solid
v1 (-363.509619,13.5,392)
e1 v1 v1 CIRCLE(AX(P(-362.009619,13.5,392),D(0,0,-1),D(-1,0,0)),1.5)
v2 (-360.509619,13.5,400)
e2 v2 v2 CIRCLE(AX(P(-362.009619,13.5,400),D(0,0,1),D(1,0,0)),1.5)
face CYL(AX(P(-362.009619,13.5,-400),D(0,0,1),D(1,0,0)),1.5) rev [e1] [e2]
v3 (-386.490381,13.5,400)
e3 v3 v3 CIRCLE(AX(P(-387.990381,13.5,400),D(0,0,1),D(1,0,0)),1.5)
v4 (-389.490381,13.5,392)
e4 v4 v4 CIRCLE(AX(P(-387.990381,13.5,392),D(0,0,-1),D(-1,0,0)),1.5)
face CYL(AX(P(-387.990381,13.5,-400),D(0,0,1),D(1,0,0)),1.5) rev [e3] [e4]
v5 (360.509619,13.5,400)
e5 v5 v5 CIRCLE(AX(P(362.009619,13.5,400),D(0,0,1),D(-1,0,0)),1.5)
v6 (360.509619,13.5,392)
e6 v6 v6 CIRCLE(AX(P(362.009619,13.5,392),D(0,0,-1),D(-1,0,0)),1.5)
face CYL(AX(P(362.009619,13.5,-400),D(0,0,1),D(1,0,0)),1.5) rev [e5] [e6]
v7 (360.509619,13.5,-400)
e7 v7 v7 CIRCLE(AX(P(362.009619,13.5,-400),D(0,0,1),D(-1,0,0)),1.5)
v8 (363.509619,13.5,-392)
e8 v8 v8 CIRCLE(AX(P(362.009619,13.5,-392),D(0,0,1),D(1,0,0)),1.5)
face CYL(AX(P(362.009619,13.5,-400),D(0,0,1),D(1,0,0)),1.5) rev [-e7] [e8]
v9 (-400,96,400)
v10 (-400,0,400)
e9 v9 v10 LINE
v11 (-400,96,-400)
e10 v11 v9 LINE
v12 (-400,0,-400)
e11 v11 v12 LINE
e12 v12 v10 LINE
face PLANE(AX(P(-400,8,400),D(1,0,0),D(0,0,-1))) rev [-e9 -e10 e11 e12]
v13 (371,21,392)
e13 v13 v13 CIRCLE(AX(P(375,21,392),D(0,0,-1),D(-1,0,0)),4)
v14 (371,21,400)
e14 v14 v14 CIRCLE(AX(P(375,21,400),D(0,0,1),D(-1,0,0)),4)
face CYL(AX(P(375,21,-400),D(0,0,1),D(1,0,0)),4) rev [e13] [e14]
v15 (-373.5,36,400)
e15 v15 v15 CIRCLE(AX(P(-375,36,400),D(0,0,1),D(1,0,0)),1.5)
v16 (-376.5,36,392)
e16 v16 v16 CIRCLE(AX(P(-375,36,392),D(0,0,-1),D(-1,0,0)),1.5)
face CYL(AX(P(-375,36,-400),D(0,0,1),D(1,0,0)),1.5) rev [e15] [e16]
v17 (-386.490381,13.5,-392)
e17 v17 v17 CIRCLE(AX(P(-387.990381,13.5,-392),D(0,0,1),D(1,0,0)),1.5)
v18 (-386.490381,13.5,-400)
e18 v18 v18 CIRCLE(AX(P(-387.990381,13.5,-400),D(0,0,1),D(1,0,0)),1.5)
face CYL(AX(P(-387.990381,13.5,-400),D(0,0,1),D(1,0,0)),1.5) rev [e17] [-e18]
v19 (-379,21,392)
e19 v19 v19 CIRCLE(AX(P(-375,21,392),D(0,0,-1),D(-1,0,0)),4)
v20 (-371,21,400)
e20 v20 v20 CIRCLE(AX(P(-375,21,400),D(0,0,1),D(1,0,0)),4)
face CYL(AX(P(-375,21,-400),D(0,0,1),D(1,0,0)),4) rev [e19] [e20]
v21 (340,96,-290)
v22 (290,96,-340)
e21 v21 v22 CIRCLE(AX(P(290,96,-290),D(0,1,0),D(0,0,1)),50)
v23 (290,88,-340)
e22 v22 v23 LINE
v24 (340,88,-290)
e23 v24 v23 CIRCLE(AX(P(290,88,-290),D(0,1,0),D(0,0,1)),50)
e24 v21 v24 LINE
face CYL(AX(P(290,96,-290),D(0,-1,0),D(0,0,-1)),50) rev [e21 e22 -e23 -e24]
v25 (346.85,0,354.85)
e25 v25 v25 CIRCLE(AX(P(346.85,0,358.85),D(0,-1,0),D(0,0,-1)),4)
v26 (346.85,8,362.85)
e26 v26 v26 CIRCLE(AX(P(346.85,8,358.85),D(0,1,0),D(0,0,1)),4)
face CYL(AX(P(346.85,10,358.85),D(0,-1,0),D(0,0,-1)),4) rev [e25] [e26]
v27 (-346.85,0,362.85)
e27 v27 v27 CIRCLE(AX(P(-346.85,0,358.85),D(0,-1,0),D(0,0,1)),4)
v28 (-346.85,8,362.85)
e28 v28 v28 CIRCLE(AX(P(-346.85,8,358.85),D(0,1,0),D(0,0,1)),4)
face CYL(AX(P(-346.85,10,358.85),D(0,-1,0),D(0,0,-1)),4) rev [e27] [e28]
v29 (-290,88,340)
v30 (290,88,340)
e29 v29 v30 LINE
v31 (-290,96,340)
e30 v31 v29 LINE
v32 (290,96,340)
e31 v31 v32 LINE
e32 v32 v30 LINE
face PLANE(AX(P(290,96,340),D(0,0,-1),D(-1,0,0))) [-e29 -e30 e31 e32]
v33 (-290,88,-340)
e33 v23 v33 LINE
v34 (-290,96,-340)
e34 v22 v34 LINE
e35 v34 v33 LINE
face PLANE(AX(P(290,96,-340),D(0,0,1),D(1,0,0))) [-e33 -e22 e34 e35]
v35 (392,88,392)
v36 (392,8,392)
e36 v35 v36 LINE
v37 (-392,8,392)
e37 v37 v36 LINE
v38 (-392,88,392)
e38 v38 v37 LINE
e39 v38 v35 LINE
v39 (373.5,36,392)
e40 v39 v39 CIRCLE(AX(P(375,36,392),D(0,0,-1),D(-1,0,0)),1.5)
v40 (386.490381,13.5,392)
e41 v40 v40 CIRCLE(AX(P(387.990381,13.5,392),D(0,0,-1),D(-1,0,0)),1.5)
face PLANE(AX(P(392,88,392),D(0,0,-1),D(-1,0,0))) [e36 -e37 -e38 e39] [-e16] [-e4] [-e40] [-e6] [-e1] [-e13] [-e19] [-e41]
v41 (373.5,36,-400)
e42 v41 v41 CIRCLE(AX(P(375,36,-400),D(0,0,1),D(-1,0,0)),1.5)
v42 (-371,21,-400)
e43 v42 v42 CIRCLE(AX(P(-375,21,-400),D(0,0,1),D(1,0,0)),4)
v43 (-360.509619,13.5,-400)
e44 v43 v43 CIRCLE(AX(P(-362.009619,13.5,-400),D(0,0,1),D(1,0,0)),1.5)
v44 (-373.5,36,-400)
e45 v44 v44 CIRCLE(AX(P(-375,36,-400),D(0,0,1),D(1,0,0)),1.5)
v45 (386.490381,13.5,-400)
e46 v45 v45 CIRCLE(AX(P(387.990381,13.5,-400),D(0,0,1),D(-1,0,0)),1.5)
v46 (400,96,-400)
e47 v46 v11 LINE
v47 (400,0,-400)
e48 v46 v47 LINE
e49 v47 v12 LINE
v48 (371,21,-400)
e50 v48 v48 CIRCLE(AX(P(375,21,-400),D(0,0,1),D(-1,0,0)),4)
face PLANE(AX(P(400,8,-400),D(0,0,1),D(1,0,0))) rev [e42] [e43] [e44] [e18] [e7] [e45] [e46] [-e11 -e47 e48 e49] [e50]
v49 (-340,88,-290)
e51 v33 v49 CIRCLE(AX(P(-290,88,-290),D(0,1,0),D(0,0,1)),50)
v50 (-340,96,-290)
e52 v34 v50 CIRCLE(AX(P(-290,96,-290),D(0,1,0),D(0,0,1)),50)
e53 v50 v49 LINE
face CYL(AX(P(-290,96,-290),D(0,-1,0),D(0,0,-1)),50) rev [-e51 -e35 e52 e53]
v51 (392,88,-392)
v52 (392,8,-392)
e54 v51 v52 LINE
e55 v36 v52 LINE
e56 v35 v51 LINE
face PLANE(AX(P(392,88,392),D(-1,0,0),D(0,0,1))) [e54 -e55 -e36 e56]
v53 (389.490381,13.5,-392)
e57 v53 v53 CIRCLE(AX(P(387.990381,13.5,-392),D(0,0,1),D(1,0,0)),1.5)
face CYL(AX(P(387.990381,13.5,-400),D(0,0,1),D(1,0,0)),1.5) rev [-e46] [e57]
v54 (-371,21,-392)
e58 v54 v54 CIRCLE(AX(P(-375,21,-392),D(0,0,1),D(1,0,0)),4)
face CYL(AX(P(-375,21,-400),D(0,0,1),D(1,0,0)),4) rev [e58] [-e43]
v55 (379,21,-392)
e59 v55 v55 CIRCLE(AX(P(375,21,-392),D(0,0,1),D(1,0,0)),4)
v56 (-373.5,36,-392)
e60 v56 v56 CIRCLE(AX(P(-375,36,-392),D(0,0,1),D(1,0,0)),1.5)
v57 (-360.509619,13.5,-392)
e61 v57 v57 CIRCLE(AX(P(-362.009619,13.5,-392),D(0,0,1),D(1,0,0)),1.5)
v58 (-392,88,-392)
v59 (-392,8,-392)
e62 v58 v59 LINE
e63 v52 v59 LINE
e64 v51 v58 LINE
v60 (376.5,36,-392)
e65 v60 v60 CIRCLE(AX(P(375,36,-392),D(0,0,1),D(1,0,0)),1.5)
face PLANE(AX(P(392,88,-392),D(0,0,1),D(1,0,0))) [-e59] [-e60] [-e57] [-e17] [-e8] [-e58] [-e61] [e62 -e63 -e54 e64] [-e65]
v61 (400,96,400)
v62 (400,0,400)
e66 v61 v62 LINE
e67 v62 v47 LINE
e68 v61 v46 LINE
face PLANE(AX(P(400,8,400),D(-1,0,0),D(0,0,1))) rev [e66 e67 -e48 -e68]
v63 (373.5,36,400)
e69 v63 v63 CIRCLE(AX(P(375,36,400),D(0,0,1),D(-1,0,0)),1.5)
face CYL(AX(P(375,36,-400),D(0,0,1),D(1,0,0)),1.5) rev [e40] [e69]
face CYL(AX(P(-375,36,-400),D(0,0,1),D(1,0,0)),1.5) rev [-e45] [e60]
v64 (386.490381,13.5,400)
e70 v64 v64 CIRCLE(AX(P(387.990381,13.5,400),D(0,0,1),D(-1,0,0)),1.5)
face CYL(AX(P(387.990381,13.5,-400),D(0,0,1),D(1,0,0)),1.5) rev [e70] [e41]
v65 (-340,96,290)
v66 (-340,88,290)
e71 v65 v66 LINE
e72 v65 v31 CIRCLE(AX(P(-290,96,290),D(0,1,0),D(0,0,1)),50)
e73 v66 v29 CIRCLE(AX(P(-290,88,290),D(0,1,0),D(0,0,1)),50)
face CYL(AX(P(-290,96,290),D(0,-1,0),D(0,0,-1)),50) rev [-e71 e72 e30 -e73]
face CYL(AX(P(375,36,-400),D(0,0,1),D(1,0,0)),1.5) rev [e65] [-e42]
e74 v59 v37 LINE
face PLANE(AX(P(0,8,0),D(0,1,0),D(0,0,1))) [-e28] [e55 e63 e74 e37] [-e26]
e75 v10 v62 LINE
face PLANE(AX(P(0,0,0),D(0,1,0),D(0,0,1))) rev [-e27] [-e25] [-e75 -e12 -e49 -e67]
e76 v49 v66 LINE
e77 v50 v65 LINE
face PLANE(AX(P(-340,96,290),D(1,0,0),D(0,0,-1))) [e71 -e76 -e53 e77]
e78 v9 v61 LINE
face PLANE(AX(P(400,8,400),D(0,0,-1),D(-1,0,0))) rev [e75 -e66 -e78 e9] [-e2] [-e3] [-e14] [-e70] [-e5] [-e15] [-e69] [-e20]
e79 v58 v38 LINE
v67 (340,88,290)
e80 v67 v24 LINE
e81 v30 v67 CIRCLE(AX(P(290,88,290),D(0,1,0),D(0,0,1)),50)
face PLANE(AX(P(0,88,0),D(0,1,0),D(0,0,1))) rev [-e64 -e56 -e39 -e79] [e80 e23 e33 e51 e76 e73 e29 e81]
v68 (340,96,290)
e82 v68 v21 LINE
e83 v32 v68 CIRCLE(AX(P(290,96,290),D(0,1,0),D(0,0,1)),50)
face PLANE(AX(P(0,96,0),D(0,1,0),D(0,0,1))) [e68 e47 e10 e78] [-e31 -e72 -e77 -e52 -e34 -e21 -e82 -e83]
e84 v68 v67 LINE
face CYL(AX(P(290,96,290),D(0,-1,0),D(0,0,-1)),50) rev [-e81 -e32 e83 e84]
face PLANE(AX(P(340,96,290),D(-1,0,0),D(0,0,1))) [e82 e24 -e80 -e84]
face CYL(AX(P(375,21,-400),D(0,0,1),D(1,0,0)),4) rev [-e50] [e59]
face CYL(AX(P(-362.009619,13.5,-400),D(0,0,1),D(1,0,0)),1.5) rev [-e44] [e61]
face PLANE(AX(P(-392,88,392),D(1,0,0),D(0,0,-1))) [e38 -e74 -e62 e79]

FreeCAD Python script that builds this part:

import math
import FreeCAD as App
import Part
import Sketcher
from FreeCAD import Vector

doc = App.newDocument("Part")
body = doc.addObject("PartDesign::Body", "Body")

# Sketch on XZ plane
sketch1 = body.newObject("Sketcher::SketchObject", "Sketch")
sketch1.AttachmentSupport = (doc.getObject("XZ_Plane"), [""])
sketch1.MapMode = "FlatFace"
sketch1.addGeometry(Part.LineSegment(Vector(-400, -400, 0), Vector(-400, 400, 0)), False)
sketch1.addGeometry(Part.LineSegment(Vector(-400, 400, 0), Vector(400, 400, 0)), False)
sketch1.addGeometry(Part.LineSegment(Vector(400, 400, 0), Vector(400, -400, 0)), False)
sketch1.addGeometry(Part.LineSegment(Vector(400, -400, 0), Vector(-400, -400, 0)), False)
sketch1.addConstraint(Sketcher.Constraint("Coincident", 0, 2, 1, 1))
sketch1.addConstraint(Sketcher.Constraint("Coincident", 1, 2, 2, 1))
sketch1.addConstraint(Sketcher.Constraint("Coincident", 2, 2, 3, 1))
sketch1.addConstraint(Sketcher.Constraint("Coincident", 3, 2, 0, 1))
sketch1.addConstraint(Sketcher.Constraint("Vertical", 0))
sketch1.addConstraint(Sketcher.Constraint("Horizontal", 1))
sketch1.addConstraint(Sketcher.Constraint("Vertical", 2))
sketch1.addConstraint(Sketcher.Constraint("Horizontal", 3))
sketch1.addConstraint(Sketcher.Constraint("Symmetric", 0, 2, 2, 2, -1, 1))
sketch1.addConstraint(Sketcher.Constraint("Equal", 3, 0))
sketch1.addConstraint(Sketcher.Constraint("DistanceX", 1, 1, 1, 2, 800.0))
pad1 = body.newObject("PartDesign::Pad", "Pad")
pad1.Profile = sketch1
pad1.Length = 8
pad1.Reversed = True

# Sketch on XZ plane
sketch2 = body.newObject("Sketcher::SketchObject", "Sketch001")
sketch2.AttachmentSupport = (doc.getObject("XZ_Plane"), [""])
sketch2.MapMode = "FlatFace"
sketch2.AttachmentOffset = App.Placement(Vector(0, 0, -8), App.Rotation())
sketch2.addGeometry(Part.LineSegment(Vector(-400, -400, 0), Vector(-400, 400, 0)), False)
sketch2.addGeometry(Part.LineSegment(Vector(-400, 400, 0), Vector(400, 400, 0)), False)
sketch2.addGeometry(Part.LineSegment(Vector(400, 400, 0), Vector(400, -400, 0)), False)
sketch2.addGeometry(Part.LineSegment(Vector(400, -400, 0), Vector(-400, -400, 0)), False)
sketch2.addGeometry(Part.LineSegment(Vector(392, 392, 0), Vector(-392, 392, 0)), False)
sketch2.addGeometry(Part.LineSegment(Vector(-392, 392, 0), Vector(-392, -392, 0)), False)
sketch2.addGeometry(Part.LineSegment(Vector(-392, -392, 0), Vector(392, -392, 0)), False)
sketch2.addGeometry(Part.LineSegment(Vector(392, -392, 0), Vector(392, 392, 0)), False)
sketch2.addConstraint(Sketcher.Constraint("Coincident", 0, 2, 1, 1))
sketch2.addConstraint(Sketcher.Constraint("Coincident", 1, 2, 2, 1))
sketch2.addConstraint(Sketcher.Constraint("Coincident", 2, 2, 3, 1))
sketch2.addConstraint(Sketcher.Constraint("Coincident", 3, 2, 0, 1))
sketch2.addConstraint(Sketcher.Constraint("Coincident", 4, 2, 5, 1))
sketch2.addConstraint(Sketcher.Constraint("Coincident", 5, 2, 6, 1))
sketch2.addConstraint(Sketcher.Constraint("Coincident", 6, 2, 7, 1))
sketch2.addConstraint(Sketcher.Constraint("Coincident", 7, 2, 4, 1))
sketch2.addConstraint(Sketcher.Constraint("Vertical", 0))
sketch2.addConstraint(Sketcher.Constraint("Horizontal", 1))
sketch2.addConstraint(Sketcher.Constraint("Vertical", 2))
sketch2.addConstraint(Sketcher.Constraint("Horizontal", 3))
sketch2.addConstraint(Sketcher.Constraint("Horizontal", 4))
sketch2.addConstraint(Sketcher.Constraint("Vertical", 5))
sketch2.addConstraint(Sketcher.Constraint("Horizontal", 6))
sketch2.addConstraint(Sketcher.Constraint("Vertical", 7))
sketch2.addConstraint(Sketcher.Constraint("Symmetric", 0, 2, 2, 2, -1, 1))
sketch2.addConstraint(Sketcher.Constraint("Symmetric", 4, 2, 6, 2, -1, 1))
sketch2.addConstraint(Sketcher.Constraint("Equal", 3, 0))
sketch2.addConstraint(Sketcher.Constraint("Equal", 6, 5))
sketch2.addConstraint(Sketcher.Constraint("DistanceX", 1, 1, 1, 2, 800.0))
sketch2.addConstraint(Sketcher.Constraint("DistanceX", 4, 2, 4, 1, 784.0))
pad2 = body.newObject("PartDesign::Pad", "Pad001")
pad2.Profile = sketch2
pad2.Length = 80
pad2.Reversed = True

# Sketch on XZ plane
sketch3 = body.newObject("Sketcher::SketchObject", "Sketch002")
sketch3.AttachmentSupport = (doc.getObject("XZ_Plane"), [""])
sketch3.MapMode = "FlatFace"
sketch3.AttachmentOffset = App.Placement(Vector(0, 0, -88), App.Rotation())
sketch3.addGeometry(Part.LineSegment(Vector(-400, -400, 0), Vector(-400, 400, 0)), False)
sketch3.addGeometry(Part.LineSegment(Vector(-400, 400, 0), Vector(400, 400, 0)), False)
sketch3.addGeometry(Part.LineSegment(Vector(400, 400, 0), Vector(400, -400, 0)), False)
sketch3.addGeometry(Part.LineSegment(Vector(400, -400, 0), Vector(-400, -400, 0)), False)
sketch3.addGeometry(Part.ArcOfCircle(Part.Circle(Vector(290, 290, 0), Vector(0, 0, 1), 50), math.radians(0), math.radians(90)), False)
sketch3.addGeometry(Part.LineSegment(Vector(290, 340, 0), Vector(-290, 340, 0)), False)
sketch3.addGeometry(Part.ArcOfCircle(Part.Circle(Vector(-290, 290, 0), Vector(0, 0, 1), 50), math.radians(90), math.radians(180)), False)
sketch3.addGeometry(Part.LineSegment(Vector(-340, 290, 0), Vector(-340, -290, 0)), False)
sketch3.addGeometry(Part.ArcOfCircle(Part.Circle(Vector(-290, -290, 0), Vector(0, 0, 1), 50), math.radians(-180), math.radians(-90)), False)
sketch3.addGeometry(Part.LineSegment(Vector(-290, -340, 0), Vector(290, -340, 0)), False)
sketch3.addGeometry(Part.ArcOfCircle(Part.Circle(Vector(290, -290, 0), Vector(0, 0, 1), 50), math.radians(-90), math.radians(0)), False)
sketch3.addGeometry(Part.LineSegment(Vector(340, -290, 0), Vector(340, 290, 0)), False)
sketch3.addConstraint(Sketcher.Constraint("Coincident", 0, 2, 1, 1))
sketch3.addConstraint(Sketcher.Constraint("Coincident", 1, 2, 2, 1))
sketch3.addConstraint(Sketcher.Constraint("Coincident", 2, 2, 3, 1))
sketch3.addConstraint(Sketcher.Constraint("Coincident", 3, 2, 0, 1))
sketch3.addConstraint(Sketcher.Constraint("Tangent", 4, 2, 5, 1))
sketch3.addConstraint(Sketcher.Constraint("Tangent", 5, 2, 6, 1))
sketch3.addConstraint(Sketcher.Constraint("Tangent", 6, 2, 7, 1))
sketch3.addConstraint(Sketcher.Constraint("Tangent", 7, 2, 8, 1))
sketch3.addConstraint(Sketcher.Constraint("Tangent", 8, 2, 9, 1))
sketch3.addConstraint(Sketcher.Constraint("Tangent", 9, 2, 10, 1))
sketch3.addConstraint(Sketcher.Constraint("Tangent", 10, 2, 11, 1))
sketch3.addConstraint(Sketcher.Constraint("Tangent", 11, 2, 4, 1))
sketch3.addConstraint(Sketcher.Constraint("Vertical", 0))
sketch3.addConstraint(Sketcher.Constraint("Horizontal", 1))
sketch3.addConstraint(Sketcher.Constraint("Vertical", 2))
sketch3.addConstraint(Sketcher.Constraint("Horizontal", 3))
sketch3.addConstraint(Sketcher.Constraint("Horizontal", 5))
sketch3.addConstraint(Sketcher.Constraint("Vertical", 7))
sketch3.addConstraint(Sketcher.Constraint("Horizontal", 9))
sketch3.addConstraint(Sketcher.Constraint("Vertical", 11))
sketch3.addConstraint(Sketcher.Constraint("Equal", 4, 6))
sketch3.addConstraint(Sketcher.Constraint("Equal", 6, 8))
sketch3.addConstraint(Sketcher.Constraint("Equal", 8, 10))
sketch3.addConstraint(Sketcher.Constraint("Symmetric", 4, 3, 8, 3, -1, 1))
sketch3.addConstraint(Sketcher.Constraint("Symmetric", 0, 2, 2, 2, -1, 1))
sketch3.addConstraint(Sketcher.Constraint("Equal", 3, 0))
sketch3.addConstraint(Sketcher.Constraint("Equal", 9, 7))
sketch3.addConstraint(Sketcher.Constraint("Radius", 4, 50.0))
sketch3.addConstraint(Sketcher.Constraint("DistanceX", 1, 1, 1, 2, 800.0))
sketch3.addConstraint(Sketcher.Constraint("DistanceX", 5, 2, 5, 1, 580.0))
pad3 = body.newObject("PartDesign::Pad", "Pad002")
pad3.Profile = sketch3
pad3.Length = 8
pad3.Reversed = True

# Sketch on XY plane
sketch4 = body.newObject("Sketcher::SketchObject", "Sketch003")
sketch4.AttachmentSupport = (doc.getObject("XY_Plane"), [""])
sketch4.MapMode = "FlatFace"
sketch4.AttachmentOffset = App.Placement(Vector(0, 0, 400), App.Rotation())
sketch4.addGeometry(Part.Circle(Vector(-375, 21, 0), Vector(0, 0, 1), 4), False)
sketch4.addGeometry(Part.Circle(Vector(375, 21, 0), Vector(0, 0, 1), 4), False)
sketch4.addConstraint(Sketcher.Constraint("Equal", 0, 1))
sketch4.addConstraint(Sketcher.Constraint("Symmetric", 0, 3, 1, 3, -2))
sketch4.addConstraint(Sketcher.Constraint("Diameter", 0, 8.0))
sketch4.addConstraint(Sketcher.Constraint("DistanceX", 0, 3, -1, 1, 375.0))
sketch4.addConstraint(Sketcher.Constraint("DistanceY", -1, 1, 0, 3, 21.0))
pocket1 = body.newObject("PartDesign::Pocket", "Pocket")
pocket1.Profile = sketch4
pocket1.Length = 800

# Sketch on XY plane
sketch5 = body.newObject("Sketcher::SketchObject", "Sketch004")
sketch5.AttachmentSupport = (doc.getObject("XY_Plane"), [""])
sketch5.MapMode = "FlatFace"
sketch5.AttachmentOffset = App.Placement(Vector(0, 0, 400), App.Rotation())
sketch5.addGeometry(Part.Circle(Vector(-375, 36, 0), Vector(0, 0, 1), 1.5), False)
sketch5.addGeometry(Part.Circle(Vector(-388, 13.5, 0), Vector(0, 0, 1), 1.5), False)
sketch5.addGeometry(Part.Circle(Vector(-362, 13.5, 0), Vector(0, 0, 1), 1.5), False)
sketch5.addGeometry(Part.Circle(Vector(362, 13.5, 0), Vector(0, 0, 1), 1.5), False)
sketch5.addGeometry(Part.Circle(Vector(388, 13.5, 0), Vector(0, 0, 1), 1.5), False)
sketch5.addGeometry(Part.Circle(Vector(375, 36, 0), Vector(0, 0, 1), 1.5), False)
sketch5.addConstraint(Sketcher.Constraint("Equal", 0, 1))
sketch5.addConstraint(Sketcher.Constraint("Equal", 1, 2))
sketch5.addConstraint(Sketcher.Constraint("Equal", 2, 3))
sketch5.addConstraint(Sketcher.Constraint("Equal", 3, 4))
sketch5.addConstraint(Sketcher.Constraint("Equal", 4, 5))
sketch5.addConstraint(Sketcher.Constraint("Symmetric", 2, 3, 3, 3, -2))
sketch5.addConstraint(Sketcher.Constraint("Symmetric", 1, 3, 4, 3, -2))
sketch5.addConstraint(Sketcher.Constraint("Symmetric", 0, 3, 5, 3, -2))
sketch5.addConstraint(Sketcher.Constraint("Horizontal", 1, 3, 2, 3))
sketch5.addConstraint(Sketcher.Constraint("Diameter", 0, 3.0))
sketch5.addConstraint(Sketcher.Constraint("DistanceX", 0, 3, -1, 1, 375.0))
sketch5.addConstraint(Sketcher.Constraint("DistanceY", -1, 1, 0, 3, 36.0))
sketch5.addConstraint(Sketcher.Constraint("DistanceX", 1, 3, 3, 3, 750.0))
sketch5.addConstraint(Sketcher.Constraint("DistanceY", -1, 1, 1, 3, 13.5))
sketch5.addConstraint(Sketcher.Constraint("DistanceX", 1, 3, -1, 1, 387.990381))
pocket2 = body.newObject("PartDesign::Pocket", "Pocket001")
pocket2.Profile = sketch5
pocket2.Length = 800

# Sketch on XZ plane
sketch6 = body.newObject("Sketcher::SketchObject", "Sketch005")
sketch6.AttachmentSupport = (doc.getObject("XZ_Plane"), [""])
sketch6.MapMode = "FlatFace"
sketch6.addGeometry(Part.Circle(Vector(346.9, 358.9, 0), Vector(0, 0, 1), 4), False)
sketch6.addGeometry(Part.Circle(Vector(-346.9, 358.9, 0), Vector(0, 0, 1), 4), False)
sketch6.addConstraint(Sketcher.Constraint("Equal", 0, 1))
sketch6.addConstraint(Sketcher.Constraint("Symmetric", 0, 3, 1, 3, -2))
sketch6.addConstraint(Sketcher.Constraint("Diameter", 0, 8.0))
sketch6.addConstraint(Sketcher.Constraint("DistanceX", 1, 3, 0, 3, 693.7))
sketch6.addConstraint(Sketcher.Constraint("DistanceY", -1, 1, 0, 3, 358.85))
pocket3 = body.newObject("PartDesign::Pocket", "Pocket002")
pocket3.Profile = sketch6
pocket3.Length = 10

doc.recompute()
